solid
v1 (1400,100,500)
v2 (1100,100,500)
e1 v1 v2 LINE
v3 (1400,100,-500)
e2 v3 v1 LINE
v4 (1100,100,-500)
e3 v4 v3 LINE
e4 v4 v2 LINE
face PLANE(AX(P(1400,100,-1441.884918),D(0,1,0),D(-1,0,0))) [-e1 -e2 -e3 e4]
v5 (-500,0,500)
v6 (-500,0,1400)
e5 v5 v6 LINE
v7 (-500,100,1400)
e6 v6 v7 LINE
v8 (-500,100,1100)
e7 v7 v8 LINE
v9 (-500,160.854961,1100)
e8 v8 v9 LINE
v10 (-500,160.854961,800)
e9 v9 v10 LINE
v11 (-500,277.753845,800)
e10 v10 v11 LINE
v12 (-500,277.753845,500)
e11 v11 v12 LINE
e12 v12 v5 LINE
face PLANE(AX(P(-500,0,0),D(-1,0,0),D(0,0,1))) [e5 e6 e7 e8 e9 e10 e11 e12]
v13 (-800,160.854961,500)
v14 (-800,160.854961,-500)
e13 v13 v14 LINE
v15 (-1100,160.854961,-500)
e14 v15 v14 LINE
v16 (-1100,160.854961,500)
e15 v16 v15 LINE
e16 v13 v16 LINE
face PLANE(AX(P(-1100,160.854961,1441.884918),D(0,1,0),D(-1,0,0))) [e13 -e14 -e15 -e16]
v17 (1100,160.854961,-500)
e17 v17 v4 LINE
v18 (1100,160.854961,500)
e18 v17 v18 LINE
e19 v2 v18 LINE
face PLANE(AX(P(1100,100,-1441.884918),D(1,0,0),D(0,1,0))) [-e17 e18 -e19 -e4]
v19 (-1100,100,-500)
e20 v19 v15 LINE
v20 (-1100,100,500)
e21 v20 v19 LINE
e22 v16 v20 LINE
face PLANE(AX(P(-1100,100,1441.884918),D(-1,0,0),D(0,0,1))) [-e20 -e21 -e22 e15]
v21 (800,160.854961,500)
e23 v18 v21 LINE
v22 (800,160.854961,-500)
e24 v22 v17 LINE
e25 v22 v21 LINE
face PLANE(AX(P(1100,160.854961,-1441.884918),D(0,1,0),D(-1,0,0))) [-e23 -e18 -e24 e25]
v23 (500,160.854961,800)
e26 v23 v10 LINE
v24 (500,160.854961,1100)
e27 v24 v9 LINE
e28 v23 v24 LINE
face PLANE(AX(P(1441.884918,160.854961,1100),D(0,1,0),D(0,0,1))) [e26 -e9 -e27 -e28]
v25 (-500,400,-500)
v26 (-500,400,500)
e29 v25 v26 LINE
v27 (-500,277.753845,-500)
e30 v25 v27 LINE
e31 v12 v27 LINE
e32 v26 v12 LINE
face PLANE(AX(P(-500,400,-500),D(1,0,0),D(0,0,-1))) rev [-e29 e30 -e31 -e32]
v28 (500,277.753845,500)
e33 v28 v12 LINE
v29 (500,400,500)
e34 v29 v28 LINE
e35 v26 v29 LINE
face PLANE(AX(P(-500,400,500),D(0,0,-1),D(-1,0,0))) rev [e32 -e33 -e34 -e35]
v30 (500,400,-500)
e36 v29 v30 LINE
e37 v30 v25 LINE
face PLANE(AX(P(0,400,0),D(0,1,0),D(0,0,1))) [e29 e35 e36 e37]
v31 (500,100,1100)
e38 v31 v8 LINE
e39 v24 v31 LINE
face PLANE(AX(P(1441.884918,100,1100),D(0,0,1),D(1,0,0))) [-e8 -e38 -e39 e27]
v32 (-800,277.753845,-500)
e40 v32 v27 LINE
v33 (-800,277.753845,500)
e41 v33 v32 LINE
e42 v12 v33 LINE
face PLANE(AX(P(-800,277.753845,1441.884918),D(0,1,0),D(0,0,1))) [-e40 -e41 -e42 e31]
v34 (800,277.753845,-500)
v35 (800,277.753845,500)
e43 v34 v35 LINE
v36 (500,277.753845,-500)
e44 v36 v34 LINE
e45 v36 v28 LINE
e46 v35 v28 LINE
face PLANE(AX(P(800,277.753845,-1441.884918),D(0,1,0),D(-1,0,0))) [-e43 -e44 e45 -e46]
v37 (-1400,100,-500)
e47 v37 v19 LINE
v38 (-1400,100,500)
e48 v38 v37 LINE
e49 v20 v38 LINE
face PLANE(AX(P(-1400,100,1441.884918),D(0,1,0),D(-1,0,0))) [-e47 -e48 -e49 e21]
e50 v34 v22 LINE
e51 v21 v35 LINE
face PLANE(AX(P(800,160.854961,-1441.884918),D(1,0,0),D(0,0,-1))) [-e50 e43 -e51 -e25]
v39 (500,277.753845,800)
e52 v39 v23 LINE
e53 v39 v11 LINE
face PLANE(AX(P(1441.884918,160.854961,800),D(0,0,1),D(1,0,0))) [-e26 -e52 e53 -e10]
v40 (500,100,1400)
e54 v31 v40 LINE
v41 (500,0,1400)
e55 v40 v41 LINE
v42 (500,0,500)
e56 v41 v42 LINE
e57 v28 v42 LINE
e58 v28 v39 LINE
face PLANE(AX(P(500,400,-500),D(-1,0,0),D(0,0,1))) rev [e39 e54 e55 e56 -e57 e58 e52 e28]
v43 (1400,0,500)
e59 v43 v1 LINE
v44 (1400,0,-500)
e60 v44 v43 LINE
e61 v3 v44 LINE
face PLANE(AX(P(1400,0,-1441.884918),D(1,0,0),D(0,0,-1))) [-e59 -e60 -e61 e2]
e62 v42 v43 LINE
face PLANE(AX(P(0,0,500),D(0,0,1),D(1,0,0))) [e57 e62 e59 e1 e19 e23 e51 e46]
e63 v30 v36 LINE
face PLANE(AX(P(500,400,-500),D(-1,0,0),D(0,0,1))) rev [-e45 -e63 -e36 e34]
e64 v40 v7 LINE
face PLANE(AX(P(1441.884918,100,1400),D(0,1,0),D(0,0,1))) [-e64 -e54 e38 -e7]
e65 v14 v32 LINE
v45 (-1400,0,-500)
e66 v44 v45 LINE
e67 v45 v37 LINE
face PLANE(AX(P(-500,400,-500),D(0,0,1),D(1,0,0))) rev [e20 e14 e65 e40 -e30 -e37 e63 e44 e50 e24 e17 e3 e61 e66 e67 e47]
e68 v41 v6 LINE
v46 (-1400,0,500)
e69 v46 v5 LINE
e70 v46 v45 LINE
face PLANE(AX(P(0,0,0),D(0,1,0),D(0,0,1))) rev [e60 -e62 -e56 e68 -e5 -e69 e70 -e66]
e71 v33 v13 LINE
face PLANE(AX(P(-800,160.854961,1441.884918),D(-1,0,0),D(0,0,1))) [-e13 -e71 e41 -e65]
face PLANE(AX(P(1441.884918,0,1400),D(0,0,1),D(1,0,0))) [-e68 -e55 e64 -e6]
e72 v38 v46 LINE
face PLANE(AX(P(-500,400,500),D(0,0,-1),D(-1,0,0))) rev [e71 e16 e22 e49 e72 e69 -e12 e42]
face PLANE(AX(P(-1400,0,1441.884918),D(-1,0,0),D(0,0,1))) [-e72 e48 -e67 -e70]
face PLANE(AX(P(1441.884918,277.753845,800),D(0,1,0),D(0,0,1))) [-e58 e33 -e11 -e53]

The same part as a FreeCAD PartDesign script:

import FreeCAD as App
import Part
import Sketcher
Q = App.Units.Quantity

doc = App.newDocument("Part")
body = doc.addObject("PartDesign::Body", "Body")

sketch1 = doc.addObject("Sketcher::SketchObject", "Sketch")
body.addObject(sketch1)
sketch1.AttachmentSupport = (doc.XZ_Plane, [""])
sketch1.MapMode = "FlatFace"
sketch1.addGeometry(Part.LineSegment(App.Vector(-500, -500, 0), App.Vector(-500, 500, 0)), False)
sketch1.addGeometry(Part.LineSegment(App.Vector(-500, 500, 0), App.Vector(500, 500, 0)), False)
sketch1.addGeometry(Part.LineSegment(App.Vector(500, 500, 0), App.Vector(500, -500, 0)), False)
sketch1.addGeometry(Part.LineSegment(App.Vector(500, -500, 0), App.Vector(-500, -500, 0)), False)
sketch1.addConstraint(Sketcher.Constraint("Coincident", 0, 2, 1, 1))
sketch1.addConstraint(Sketcher.Constraint("Coincident", 1, 2, 2, 1))
sketch1.addConstraint(Sketcher.Constraint("Coincident", 2, 2, 3, 1))
sketch1.addConstraint(Sketcher.Constraint("Coincident", 3, 2, 0, 1))
sketch1.addConstraint(Sketcher.Constraint("Vertical", 0))
sketch1.addConstraint(Sketcher.Constraint("Horizontal", 1))
sketch1.addConstraint(Sketcher.Constraint("Vertical", 2))
sketch1.addConstraint(Sketcher.Constraint("Horizontal", 3))
sketch1.addConstraint(Sketcher.Constraint("Symmetric", 0, 2, 2, 2, -1, 1))
sketch1.addConstraint(Sketcher.Constraint("Equal", 3, 0))
sketch1.addConstraint(Sketcher.Constraint("DistanceX", 1, 1, 1, 2, Q("1000 mm")))
pad1 = doc.addObject("PartDesign::Pad", "Pad")
body.addObject(pad1)
pad1.Profile = sketch1
pad1.Length = 400
pad1.Reversed = True

sketch2 = doc.addObject("Sketcher::SketchObject", "Sketch001")
body.addObject(sketch2)
sketch2.AttachmentSupport = (doc.XY_Plane, [""])
sketch2.MapMode = "FlatFace"
sketch2.AttachmentOffset = App.Placement(App.Vector(0, 0, -500), App.Rotation())
sketch2.addGeometry(Part.LineSegment(App.Vector(-500, 0, 0), App.Vector(-1400, 0, 0)), False)
sketch2.addGeometry(Part.LineSegment(App.Vector(-1400, 0, 0), App.Vector(-1400, 100, 0)), False)
sketch2.addGeometry(Part.LineSegment(App.Vector(-1400, 100, 0), App.Vector(-1100, 100, 0)), False)
sketch2.addGeometry(Part.LineSegment(App.Vector(-1100, 100, 0), App.Vector(-1100, 161, 0)), False)
sketch2.addGeometry(Part.LineSegment(App.Vector(-1100, 161, 0), App.Vector(-800, 161, 0)), False)
sketch2.addGeometry(Part.LineSegment(App.Vector(-800, 161, 0), App.Vector(-800, 278, 0)), False)
sketch2.addGeometry(Part.LineSegment(App.Vector(-800, 278, 0), App.Vector(-500, 278, 0)), False)
sketch2.addGeometry(Part.LineSegment(App.Vector(-500, 278, 0), App.Vector(-500, 0, 0)), False)
sketch2.addConstraint(Sketcher.Constraint("Coincident", 0, 2, 1, 1))
sketch2.addConstraint(Sketcher.Constraint("Coincident", 1, 2, 2, 1))
sketch2.addConstraint(Sketcher.Constraint("Coincident", 2, 2, 3, 1))
sketch2.addConstraint(Sketcher.Constraint("Coincident", 3, 2, 4, 1))
sketch2.addConstraint(Sketcher.Constraint("Coincident", 4, 2, 5, 1))
sketch2.addConstraint(Sketcher.Constraint("Coincident", 5, 2, 6, 1))
sketch2.addConstraint(Sketcher.Constraint("Coincident", 6, 2, 7, 1))
sketch2.addConstraint(Sketcher.Constraint("Coincident", 7, 2, 0, 1))
sketch2.addConstraint(Sketcher.Constraint("Horizontal", 0))
sketch2.addConstraint(Sketcher.Constraint("Vertical", 1))
sketch2.addConstraint(Sketcher.Constraint("Horizontal", 2))
sketch2.addConstraint(Sketcher.Constraint("Vertical", 3))
sketch2.addConstraint(Sketcher.Constraint("Horizontal", 4))
sketch2.addConstraint(Sketcher.Constraint("Vertical", 5))
sketch2.addConstraint(Sketcher.Constraint("Horizontal", 6))
sketch2.addConstraint(Sketcher.Constraint("Vertical", 7))
sketch2.addConstraint(Sketcher.Constraint("PointOnObject", 0, 2, -1))
sketch2.addConstraint(Sketcher.Constraint("Equal", 2, 4))
sketch2.addConstraint(Sketcher.Constraint("Equal", 4, 6))
sketch2.addConstraint(Sketcher.Constraint("DistanceX", 0, 2, 0, 1, Q("900 mm")))
sketch2.addConstraint(Sketcher.Constraint("DistanceY", 1, 1, 1, 2, Q("100 mm")))
sketch2.addConstraint(Sketcher.Constraint("DistanceX", 0, 2, -1, 1, Q("1400 mm")))
sketch2.addConstraint(Sketcher.Constraint("DistanceY", 3, 1, 3, 2, Q("60.854961 mm")))
sketch2.addConstraint(Sketcher.Constraint("DistanceY", 5, 1, 5, 2, Q("116.898884 mm")))
pad2 = doc.addObject("PartDesign::Pad", "Pad001")
body.addObject(pad2)
pad2.Profile = sketch2
pad2.Length = 1000

sketch3 = doc.addObject("Sketcher::SketchObject", "Sketch002")
body.addObject(sketch3)
sketch3.AttachmentSupport = (doc.YZ_Plane, [""])
sketch3.MapMode = "FlatFace"
sketch3.AttachmentOffset = App.Placement(App.Vector(0, 0, -500), App.Rotation())
sketch3.addGeometry(Part.LineSegment(App.Vector(0, 500, 0), App.Vector(0, 1400, 0)), False)
sketch3.addGeometry(Part.LineSegment(App.Vector(0, 1400, 0), App.Vector(100, 1400, 0)), False)
sketch3.addGeometry(Part.LineSegment(App.Vector(100, 1400, 0), App.Vector(100, 1100, 0)), False)
sketch3.addGeometry(Part.LineSegment(App.Vector(100, 1100, 0), App.Vector(161, 1100, 0)), False)
sketch3.addGeometry(Part.LineSegment(App.Vector(161, 1100, 0), App.Vector(161, 800, 0)), False)
sketch3.addGeometry(Part.LineSegment(App.Vector(161, 800, 0), App.Vector(278, 800, 0)), False)
sketch3.addGeometry(Part.LineSegment(App.Vector(278, 800, 0), App.Vector(278, 500, 0)), False)
sketch3.addGeometry(Part.LineSegment(App.Vector(278, 500, 0), App.Vector(0, 500, 0)), False)
sketch3.addConstraint(Sketcher.Constraint("Coincident", 0, 2, 1, 1))
sketch3.addConstraint(Sketcher.Constraint("Coincident", 1, 2, 2, 1))
sketch3.addConstraint(Sketcher.Constraint("Coincident", 2, 2, 3, 1))
sketch3.addConstraint(Sketcher.Constraint("Coincident", 3, 2, 4, 1))
sketch3.addConstraint(Sketcher.Constraint("Coincident", 4, 2, 5, 1))
sketch3.addConstraint(Sketcher.Constraint("Coincident", 5, 2, 6, 1))
sketch3.addConstraint(Sketcher.Constraint("Coincident", 6, 2, 7, 1))
sketch3.addConstraint(Sketcher.Constraint("Coincident", 7, 2, 0, 1))
sketch3.addConstraint(Sketcher.Constraint("Vertical", 0))
sketch3.addConstraint(Sketcher.Constraint("Horizontal", 1))
sketch3.addConstraint(Sketcher.Constraint("Vertical", 2))
sketch3.addConstraint(Sketcher.Constraint("Horizontal", 3))
sketch3.addConstraint(Sketcher.Constraint("Vertical", 4))
sketch3.addConstraint(Sketcher.Constraint("Horizontal", 5))
sketch3.addConstraint(Sketcher.Constraint("Vertical", 6))
sketch3.addConstraint(Sketcher.Constraint("Horizontal", 7))
sketch3.addConstraint(Sketcher.Constraint("PointOnObject", 0, 2, -2))
sketch3.addConstraint(Sketcher.Constraint("Equal", 2, 4))
sketch3.addConstraint(Sketcher.Constraint("Equal", 4, 6))
sketch3.addConstraint(Sketcher.Constraint("DistanceX", 1, 1, 1, 2, Q("100 mm")))
sketch3.addConstraint(Sketcher.Constraint("DistanceY", 0, 1, 0, 2, Q("900 mm")))
sketch3.addConstraint(Sketcher.Constraint("DistanceY", -1, 1, 0, 2, Q("1400 mm")))
sketch3.addConstraint(Sketcher.Constraint("DistanceX", 3, 1, 3, 2, Q("60.854961 mm")))
sketch3.addConstraint(Sketcher.Constraint("DistanceX", 5, 1, 5, 2, Q("116.898884 mm")))
pad3 = doc.addObject("PartDesign::Pad", "Pad002")
body.addObject(pad3)
pad3.Profile = sketch3
pad3.Length = 1000

sketch4 = doc.addObject("Sketcher::SketchObject", "Sketch003")
body.addObject(sketch4)
sketch4.AttachmentSupport = (doc.XY_Plane, [""])
sketch4.MapMode = "FlatFace"
sketch4.AttachmentOffset = App.Placement(App.Vector(0, 0, 500), App.Rotation())
sketch4.addGeometry(Part.LineSegment(App.Vector(500, 0, 0), App.Vector(1400, 0, 0)), False)
sketch4.addGeometry(Part.LineSegment(App.Vector(1400, 0, 0), App.Vector(1400, 100, 0)), False)
sketch4.addGeometry(Part.LineSegment(App.Vector(1400, 100, 0), App.Vector(1100, 100, 0)), False)
sketch4.addGeometry(Part.LineSegment(App.Vector(1100, 100, 0), App.Vector(1100, 161, 0)), False)
sketch4.addGeometry(Part.LineSegment(App.Vector(1100, 161, 0), App.Vector(800, 161, 0)), False)
sketch4.addGeometry(Part.LineSegment(App.Vector(800, 161, 0), App.Vector(800, 278, 0)), False)
sketch4.addGeometry(Part.LineSegment(App.Vector(800, 278, 0), App.Vector(500, 278, 0)), False)
sketch4.addGeometry(Part.LineSegment(App.Vector(500, 278, 0), App.Vector(500, 0, 0)), False)
sketch4.addConstraint(Sketcher.Constraint("Coincident", 0, 2, 1, 1))
sketch4.addConstraint(Sketcher.Constraint("Coincident", 1, 2, 2, 1))
sketch4.addConstraint(Sketcher.Constraint("Coincident", 2, 2, 3, 1))
sketch4.addConstraint(Sketcher.Constraint("Coincident", 3, 2, 4, 1))
sketch4.addConstraint(Sketcher.Constraint("Coincident", 4, 2, 5, 1))
sketch4.addConstraint(Sketcher.Constraint("Coincident", 5, 2, 6, 1))
sketch4.addConstraint(Sketcher.Constraint("Coincident", 6, 2, 7, 1))
sketch4.addConstraint(Sketcher.Constraint("Coincident", 7, 2, 0, 1))
sketch4.addConstraint(Sketcher.Constraint("Horizontal", 0))
sketch4.addConstraint(Sketcher.Constraint("Vertical", 1))
sketch4.addConstraint(Sketcher.Constraint("Horizontal", 2))
sketch4.addConstraint(Sketcher.Constraint("Vertical", 3))
sketch4.addConstraint(Sketcher.Constraint("Horizontal", 4))
sketch4.addConstraint(Sketcher.Constraint("Vertical", 5))
sketch4.addConstraint(Sketcher.Constraint("Horizontal", 6))
sketch4.addConstraint(Sketcher.Constraint("Vertical", 7))
sketch4.addConstraint(Sketcher.Constraint("PointOnObject", 0, 2, -1))
sketch4.addConstraint(Sketcher.Constraint("Equal", 2, 4))
sketch4.addConstraint(Sketcher.Constraint("Equal", 4, 6))
sketch4.addConstraint(Sketcher.Constraint("DistanceX", 0, 1, 0, 2, Q("900 mm")))
sketch4.addConstraint(Sketcher.Constraint("DistanceY", 1, 1, 1, 2, Q("100 mm")))
sketch4.addConstraint(Sketcher.Constraint("DistanceX", -1, 1, 0, 2, Q("1400 mm")))
sketch4.addConstraint(Sketcher.Constraint("DistanceY", 3, 1, 3, 2, Q("60.854961 mm")))
sketch4.addConstraint(Sketcher.Constraint("DistanceY", 5, 1, 5, 2, Q("116.898884 mm")))
pad4 = doc.addObject("PartDesign::Pad", "Pad003")
body.addObject(pad4)
pad4.Profile = sketch4
pad4.Length = 1000
pad4.Reversed = True

doc.recompute()
